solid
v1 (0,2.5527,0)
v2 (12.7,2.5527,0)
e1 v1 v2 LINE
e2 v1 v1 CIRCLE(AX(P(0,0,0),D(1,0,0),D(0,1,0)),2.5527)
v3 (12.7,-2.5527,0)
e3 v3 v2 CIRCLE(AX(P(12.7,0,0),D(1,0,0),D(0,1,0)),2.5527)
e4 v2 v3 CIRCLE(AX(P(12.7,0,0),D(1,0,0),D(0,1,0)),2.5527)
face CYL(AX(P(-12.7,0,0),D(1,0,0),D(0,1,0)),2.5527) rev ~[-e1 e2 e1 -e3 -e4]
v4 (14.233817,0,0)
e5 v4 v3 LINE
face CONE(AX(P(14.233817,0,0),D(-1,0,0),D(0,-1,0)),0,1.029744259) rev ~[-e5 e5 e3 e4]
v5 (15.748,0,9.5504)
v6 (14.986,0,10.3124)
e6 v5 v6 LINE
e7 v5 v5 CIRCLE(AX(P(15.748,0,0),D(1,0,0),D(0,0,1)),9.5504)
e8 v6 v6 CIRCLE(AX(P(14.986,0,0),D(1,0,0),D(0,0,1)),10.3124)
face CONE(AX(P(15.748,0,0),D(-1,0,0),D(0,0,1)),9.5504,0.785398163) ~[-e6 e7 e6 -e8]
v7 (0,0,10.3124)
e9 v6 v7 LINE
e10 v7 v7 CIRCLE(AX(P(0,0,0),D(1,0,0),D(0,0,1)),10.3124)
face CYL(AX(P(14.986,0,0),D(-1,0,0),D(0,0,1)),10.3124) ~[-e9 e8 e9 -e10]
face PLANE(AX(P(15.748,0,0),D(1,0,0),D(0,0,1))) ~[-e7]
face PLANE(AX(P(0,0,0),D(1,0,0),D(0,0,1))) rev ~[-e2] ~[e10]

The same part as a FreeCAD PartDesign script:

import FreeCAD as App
import Part
import Sketcher
from FreeCAD import Vector
Q = App.Units.Quantity

doc = App.newDocument("Part")
params = doc.addObject("Spreadsheet::Sheet", "Params")
for row, (alias, value) in enumerate([
    ("sketch1_width", "0.62 in"),
    ("sketch1_width2", "0.59 in"),
    ("sketch1_height", "0.406 in"),
    ("revolution_angle", "360 deg"),
    ("sketch2_diameter", "0.201 in"),
    ("hole_diameter", "0.201 in"),
    ("hole_depth", "0.5 in"),
], start=1):
    params.set(f"A{row}", alias)
    params.set(f"B{row}", "=" + value)
    params.setAlias(f"B{row}", alias)

body = doc.addObject("PartDesign::Body", "Body")

# Sketch on XZ plane
sketch1 = body.newObject("Sketcher::SketchObject", "Sketch")
sketch1.AttachmentSupport = (doc.getObject("XZ_Plane"), [""])
sketch1.MapMode = "FlatFace"
sketch1.addGeometry([
    Part.LineSegment(Vector(0, 10.3124, 0), Vector(0, 0, 0)),  # 0
    Part.LineSegment(Vector(0, 0, 0), Vector(15.748, 0, 0)),  # 1
    Part.LineSegment(Vector(15.748, 0, 0), Vector(15.748, 9.5504, 0)),  # 2
    Part.LineSegment(Vector(15.748, 9.5504, 0), Vector(14.986, 10.3124, 0)),  # 3
    Part.LineSegment(Vector(14.986, 10.3124, 0), Vector(0, 10.3124, 0)),  # 4
], False)
sketch1.addConstraint([
    Sketcher.Constraint("Coincident", 0, 2, 1, 1),
    Sketcher.Constraint("Coincident", 1, 2, 2, 1),
    Sketcher.Constraint("Coincident", 2, 2, 3, 1),
    Sketcher.Constraint("Coincident", 3, 2, 4, 1),
    Sketcher.Constraint("Coincident", 4, 2, 0, 1),
    Sketcher.Constraint("Vertical", 0),
    Sketcher.Constraint("Horizontal", 1),
    Sketcher.Constraint("Vertical", 2),
    Sketcher.Constraint("Horizontal", 4),
    Sketcher.Constraint("Coincident", 0, 2, -1, 1),
    Sketcher.Constraint("Angle", 3, Q("135 deg")),
    Sketcher.Constraint("DistanceX", 1, 1, 1, 2, Q("0.62 in")),
    Sketcher.Constraint("DistanceX", 4, 2, 4, 1, Q("0.59 in")),
    Sketcher.Constraint("DistanceY", 0, 2, 0, 1, Q("0.406 in")),
])
sketch1.setExpression("Constraints[11]", "Params.sketch1_width")
sketch1.setExpression("Constraints[12]", "Params.sketch1_width2")
sketch1.setExpression("Constraints[13]", "Params.sketch1_height")
revolution = body.newObject("PartDesign::Revolution", "Revolution")
revolution.Profile = sketch1
revolution.ReferenceAxis = (sketch1, ["H_Axis"])
revolution.setExpression("Angle", "Params.revolution_angle")

# Sketch on YZ plane
sketch2 = body.newObject("Sketcher::SketchObject", "Sketch001")
sketch2.AttachmentSupport = (doc.getObject("YZ_Plane"), [""])
sketch2.MapMode = "FlatFace"
sketch2.addGeometry(Part.Circle(Vector(0, 0, 0), Vector(0, 0, 1), 2.5527), False)
sketch2.addConstraint([
    Sketcher.Constraint("Coincident", 0, 3, -1, 1),
    Sketcher.Constraint("Diameter", 0, Q("0.201 in")),
])
sketch2.setExpression("Constraints[1]", "Params.sketch2_diameter")
doc.recompute()
hole = body.newObject("PartDesign::Hole", "Hole")
hole.Profile = sketch2
hole.ThreadType = "None"
hole.setExpression("Diameter", "Params.hole_diameter")
hole.DepthType = "Dimension"
hole.setExpression("Depth", "Params.hole_depth")
hole.DrillPoint = "Angled"
hole.DrillPointAngle = 118
hole.Reversed = True

doc.recompute()
